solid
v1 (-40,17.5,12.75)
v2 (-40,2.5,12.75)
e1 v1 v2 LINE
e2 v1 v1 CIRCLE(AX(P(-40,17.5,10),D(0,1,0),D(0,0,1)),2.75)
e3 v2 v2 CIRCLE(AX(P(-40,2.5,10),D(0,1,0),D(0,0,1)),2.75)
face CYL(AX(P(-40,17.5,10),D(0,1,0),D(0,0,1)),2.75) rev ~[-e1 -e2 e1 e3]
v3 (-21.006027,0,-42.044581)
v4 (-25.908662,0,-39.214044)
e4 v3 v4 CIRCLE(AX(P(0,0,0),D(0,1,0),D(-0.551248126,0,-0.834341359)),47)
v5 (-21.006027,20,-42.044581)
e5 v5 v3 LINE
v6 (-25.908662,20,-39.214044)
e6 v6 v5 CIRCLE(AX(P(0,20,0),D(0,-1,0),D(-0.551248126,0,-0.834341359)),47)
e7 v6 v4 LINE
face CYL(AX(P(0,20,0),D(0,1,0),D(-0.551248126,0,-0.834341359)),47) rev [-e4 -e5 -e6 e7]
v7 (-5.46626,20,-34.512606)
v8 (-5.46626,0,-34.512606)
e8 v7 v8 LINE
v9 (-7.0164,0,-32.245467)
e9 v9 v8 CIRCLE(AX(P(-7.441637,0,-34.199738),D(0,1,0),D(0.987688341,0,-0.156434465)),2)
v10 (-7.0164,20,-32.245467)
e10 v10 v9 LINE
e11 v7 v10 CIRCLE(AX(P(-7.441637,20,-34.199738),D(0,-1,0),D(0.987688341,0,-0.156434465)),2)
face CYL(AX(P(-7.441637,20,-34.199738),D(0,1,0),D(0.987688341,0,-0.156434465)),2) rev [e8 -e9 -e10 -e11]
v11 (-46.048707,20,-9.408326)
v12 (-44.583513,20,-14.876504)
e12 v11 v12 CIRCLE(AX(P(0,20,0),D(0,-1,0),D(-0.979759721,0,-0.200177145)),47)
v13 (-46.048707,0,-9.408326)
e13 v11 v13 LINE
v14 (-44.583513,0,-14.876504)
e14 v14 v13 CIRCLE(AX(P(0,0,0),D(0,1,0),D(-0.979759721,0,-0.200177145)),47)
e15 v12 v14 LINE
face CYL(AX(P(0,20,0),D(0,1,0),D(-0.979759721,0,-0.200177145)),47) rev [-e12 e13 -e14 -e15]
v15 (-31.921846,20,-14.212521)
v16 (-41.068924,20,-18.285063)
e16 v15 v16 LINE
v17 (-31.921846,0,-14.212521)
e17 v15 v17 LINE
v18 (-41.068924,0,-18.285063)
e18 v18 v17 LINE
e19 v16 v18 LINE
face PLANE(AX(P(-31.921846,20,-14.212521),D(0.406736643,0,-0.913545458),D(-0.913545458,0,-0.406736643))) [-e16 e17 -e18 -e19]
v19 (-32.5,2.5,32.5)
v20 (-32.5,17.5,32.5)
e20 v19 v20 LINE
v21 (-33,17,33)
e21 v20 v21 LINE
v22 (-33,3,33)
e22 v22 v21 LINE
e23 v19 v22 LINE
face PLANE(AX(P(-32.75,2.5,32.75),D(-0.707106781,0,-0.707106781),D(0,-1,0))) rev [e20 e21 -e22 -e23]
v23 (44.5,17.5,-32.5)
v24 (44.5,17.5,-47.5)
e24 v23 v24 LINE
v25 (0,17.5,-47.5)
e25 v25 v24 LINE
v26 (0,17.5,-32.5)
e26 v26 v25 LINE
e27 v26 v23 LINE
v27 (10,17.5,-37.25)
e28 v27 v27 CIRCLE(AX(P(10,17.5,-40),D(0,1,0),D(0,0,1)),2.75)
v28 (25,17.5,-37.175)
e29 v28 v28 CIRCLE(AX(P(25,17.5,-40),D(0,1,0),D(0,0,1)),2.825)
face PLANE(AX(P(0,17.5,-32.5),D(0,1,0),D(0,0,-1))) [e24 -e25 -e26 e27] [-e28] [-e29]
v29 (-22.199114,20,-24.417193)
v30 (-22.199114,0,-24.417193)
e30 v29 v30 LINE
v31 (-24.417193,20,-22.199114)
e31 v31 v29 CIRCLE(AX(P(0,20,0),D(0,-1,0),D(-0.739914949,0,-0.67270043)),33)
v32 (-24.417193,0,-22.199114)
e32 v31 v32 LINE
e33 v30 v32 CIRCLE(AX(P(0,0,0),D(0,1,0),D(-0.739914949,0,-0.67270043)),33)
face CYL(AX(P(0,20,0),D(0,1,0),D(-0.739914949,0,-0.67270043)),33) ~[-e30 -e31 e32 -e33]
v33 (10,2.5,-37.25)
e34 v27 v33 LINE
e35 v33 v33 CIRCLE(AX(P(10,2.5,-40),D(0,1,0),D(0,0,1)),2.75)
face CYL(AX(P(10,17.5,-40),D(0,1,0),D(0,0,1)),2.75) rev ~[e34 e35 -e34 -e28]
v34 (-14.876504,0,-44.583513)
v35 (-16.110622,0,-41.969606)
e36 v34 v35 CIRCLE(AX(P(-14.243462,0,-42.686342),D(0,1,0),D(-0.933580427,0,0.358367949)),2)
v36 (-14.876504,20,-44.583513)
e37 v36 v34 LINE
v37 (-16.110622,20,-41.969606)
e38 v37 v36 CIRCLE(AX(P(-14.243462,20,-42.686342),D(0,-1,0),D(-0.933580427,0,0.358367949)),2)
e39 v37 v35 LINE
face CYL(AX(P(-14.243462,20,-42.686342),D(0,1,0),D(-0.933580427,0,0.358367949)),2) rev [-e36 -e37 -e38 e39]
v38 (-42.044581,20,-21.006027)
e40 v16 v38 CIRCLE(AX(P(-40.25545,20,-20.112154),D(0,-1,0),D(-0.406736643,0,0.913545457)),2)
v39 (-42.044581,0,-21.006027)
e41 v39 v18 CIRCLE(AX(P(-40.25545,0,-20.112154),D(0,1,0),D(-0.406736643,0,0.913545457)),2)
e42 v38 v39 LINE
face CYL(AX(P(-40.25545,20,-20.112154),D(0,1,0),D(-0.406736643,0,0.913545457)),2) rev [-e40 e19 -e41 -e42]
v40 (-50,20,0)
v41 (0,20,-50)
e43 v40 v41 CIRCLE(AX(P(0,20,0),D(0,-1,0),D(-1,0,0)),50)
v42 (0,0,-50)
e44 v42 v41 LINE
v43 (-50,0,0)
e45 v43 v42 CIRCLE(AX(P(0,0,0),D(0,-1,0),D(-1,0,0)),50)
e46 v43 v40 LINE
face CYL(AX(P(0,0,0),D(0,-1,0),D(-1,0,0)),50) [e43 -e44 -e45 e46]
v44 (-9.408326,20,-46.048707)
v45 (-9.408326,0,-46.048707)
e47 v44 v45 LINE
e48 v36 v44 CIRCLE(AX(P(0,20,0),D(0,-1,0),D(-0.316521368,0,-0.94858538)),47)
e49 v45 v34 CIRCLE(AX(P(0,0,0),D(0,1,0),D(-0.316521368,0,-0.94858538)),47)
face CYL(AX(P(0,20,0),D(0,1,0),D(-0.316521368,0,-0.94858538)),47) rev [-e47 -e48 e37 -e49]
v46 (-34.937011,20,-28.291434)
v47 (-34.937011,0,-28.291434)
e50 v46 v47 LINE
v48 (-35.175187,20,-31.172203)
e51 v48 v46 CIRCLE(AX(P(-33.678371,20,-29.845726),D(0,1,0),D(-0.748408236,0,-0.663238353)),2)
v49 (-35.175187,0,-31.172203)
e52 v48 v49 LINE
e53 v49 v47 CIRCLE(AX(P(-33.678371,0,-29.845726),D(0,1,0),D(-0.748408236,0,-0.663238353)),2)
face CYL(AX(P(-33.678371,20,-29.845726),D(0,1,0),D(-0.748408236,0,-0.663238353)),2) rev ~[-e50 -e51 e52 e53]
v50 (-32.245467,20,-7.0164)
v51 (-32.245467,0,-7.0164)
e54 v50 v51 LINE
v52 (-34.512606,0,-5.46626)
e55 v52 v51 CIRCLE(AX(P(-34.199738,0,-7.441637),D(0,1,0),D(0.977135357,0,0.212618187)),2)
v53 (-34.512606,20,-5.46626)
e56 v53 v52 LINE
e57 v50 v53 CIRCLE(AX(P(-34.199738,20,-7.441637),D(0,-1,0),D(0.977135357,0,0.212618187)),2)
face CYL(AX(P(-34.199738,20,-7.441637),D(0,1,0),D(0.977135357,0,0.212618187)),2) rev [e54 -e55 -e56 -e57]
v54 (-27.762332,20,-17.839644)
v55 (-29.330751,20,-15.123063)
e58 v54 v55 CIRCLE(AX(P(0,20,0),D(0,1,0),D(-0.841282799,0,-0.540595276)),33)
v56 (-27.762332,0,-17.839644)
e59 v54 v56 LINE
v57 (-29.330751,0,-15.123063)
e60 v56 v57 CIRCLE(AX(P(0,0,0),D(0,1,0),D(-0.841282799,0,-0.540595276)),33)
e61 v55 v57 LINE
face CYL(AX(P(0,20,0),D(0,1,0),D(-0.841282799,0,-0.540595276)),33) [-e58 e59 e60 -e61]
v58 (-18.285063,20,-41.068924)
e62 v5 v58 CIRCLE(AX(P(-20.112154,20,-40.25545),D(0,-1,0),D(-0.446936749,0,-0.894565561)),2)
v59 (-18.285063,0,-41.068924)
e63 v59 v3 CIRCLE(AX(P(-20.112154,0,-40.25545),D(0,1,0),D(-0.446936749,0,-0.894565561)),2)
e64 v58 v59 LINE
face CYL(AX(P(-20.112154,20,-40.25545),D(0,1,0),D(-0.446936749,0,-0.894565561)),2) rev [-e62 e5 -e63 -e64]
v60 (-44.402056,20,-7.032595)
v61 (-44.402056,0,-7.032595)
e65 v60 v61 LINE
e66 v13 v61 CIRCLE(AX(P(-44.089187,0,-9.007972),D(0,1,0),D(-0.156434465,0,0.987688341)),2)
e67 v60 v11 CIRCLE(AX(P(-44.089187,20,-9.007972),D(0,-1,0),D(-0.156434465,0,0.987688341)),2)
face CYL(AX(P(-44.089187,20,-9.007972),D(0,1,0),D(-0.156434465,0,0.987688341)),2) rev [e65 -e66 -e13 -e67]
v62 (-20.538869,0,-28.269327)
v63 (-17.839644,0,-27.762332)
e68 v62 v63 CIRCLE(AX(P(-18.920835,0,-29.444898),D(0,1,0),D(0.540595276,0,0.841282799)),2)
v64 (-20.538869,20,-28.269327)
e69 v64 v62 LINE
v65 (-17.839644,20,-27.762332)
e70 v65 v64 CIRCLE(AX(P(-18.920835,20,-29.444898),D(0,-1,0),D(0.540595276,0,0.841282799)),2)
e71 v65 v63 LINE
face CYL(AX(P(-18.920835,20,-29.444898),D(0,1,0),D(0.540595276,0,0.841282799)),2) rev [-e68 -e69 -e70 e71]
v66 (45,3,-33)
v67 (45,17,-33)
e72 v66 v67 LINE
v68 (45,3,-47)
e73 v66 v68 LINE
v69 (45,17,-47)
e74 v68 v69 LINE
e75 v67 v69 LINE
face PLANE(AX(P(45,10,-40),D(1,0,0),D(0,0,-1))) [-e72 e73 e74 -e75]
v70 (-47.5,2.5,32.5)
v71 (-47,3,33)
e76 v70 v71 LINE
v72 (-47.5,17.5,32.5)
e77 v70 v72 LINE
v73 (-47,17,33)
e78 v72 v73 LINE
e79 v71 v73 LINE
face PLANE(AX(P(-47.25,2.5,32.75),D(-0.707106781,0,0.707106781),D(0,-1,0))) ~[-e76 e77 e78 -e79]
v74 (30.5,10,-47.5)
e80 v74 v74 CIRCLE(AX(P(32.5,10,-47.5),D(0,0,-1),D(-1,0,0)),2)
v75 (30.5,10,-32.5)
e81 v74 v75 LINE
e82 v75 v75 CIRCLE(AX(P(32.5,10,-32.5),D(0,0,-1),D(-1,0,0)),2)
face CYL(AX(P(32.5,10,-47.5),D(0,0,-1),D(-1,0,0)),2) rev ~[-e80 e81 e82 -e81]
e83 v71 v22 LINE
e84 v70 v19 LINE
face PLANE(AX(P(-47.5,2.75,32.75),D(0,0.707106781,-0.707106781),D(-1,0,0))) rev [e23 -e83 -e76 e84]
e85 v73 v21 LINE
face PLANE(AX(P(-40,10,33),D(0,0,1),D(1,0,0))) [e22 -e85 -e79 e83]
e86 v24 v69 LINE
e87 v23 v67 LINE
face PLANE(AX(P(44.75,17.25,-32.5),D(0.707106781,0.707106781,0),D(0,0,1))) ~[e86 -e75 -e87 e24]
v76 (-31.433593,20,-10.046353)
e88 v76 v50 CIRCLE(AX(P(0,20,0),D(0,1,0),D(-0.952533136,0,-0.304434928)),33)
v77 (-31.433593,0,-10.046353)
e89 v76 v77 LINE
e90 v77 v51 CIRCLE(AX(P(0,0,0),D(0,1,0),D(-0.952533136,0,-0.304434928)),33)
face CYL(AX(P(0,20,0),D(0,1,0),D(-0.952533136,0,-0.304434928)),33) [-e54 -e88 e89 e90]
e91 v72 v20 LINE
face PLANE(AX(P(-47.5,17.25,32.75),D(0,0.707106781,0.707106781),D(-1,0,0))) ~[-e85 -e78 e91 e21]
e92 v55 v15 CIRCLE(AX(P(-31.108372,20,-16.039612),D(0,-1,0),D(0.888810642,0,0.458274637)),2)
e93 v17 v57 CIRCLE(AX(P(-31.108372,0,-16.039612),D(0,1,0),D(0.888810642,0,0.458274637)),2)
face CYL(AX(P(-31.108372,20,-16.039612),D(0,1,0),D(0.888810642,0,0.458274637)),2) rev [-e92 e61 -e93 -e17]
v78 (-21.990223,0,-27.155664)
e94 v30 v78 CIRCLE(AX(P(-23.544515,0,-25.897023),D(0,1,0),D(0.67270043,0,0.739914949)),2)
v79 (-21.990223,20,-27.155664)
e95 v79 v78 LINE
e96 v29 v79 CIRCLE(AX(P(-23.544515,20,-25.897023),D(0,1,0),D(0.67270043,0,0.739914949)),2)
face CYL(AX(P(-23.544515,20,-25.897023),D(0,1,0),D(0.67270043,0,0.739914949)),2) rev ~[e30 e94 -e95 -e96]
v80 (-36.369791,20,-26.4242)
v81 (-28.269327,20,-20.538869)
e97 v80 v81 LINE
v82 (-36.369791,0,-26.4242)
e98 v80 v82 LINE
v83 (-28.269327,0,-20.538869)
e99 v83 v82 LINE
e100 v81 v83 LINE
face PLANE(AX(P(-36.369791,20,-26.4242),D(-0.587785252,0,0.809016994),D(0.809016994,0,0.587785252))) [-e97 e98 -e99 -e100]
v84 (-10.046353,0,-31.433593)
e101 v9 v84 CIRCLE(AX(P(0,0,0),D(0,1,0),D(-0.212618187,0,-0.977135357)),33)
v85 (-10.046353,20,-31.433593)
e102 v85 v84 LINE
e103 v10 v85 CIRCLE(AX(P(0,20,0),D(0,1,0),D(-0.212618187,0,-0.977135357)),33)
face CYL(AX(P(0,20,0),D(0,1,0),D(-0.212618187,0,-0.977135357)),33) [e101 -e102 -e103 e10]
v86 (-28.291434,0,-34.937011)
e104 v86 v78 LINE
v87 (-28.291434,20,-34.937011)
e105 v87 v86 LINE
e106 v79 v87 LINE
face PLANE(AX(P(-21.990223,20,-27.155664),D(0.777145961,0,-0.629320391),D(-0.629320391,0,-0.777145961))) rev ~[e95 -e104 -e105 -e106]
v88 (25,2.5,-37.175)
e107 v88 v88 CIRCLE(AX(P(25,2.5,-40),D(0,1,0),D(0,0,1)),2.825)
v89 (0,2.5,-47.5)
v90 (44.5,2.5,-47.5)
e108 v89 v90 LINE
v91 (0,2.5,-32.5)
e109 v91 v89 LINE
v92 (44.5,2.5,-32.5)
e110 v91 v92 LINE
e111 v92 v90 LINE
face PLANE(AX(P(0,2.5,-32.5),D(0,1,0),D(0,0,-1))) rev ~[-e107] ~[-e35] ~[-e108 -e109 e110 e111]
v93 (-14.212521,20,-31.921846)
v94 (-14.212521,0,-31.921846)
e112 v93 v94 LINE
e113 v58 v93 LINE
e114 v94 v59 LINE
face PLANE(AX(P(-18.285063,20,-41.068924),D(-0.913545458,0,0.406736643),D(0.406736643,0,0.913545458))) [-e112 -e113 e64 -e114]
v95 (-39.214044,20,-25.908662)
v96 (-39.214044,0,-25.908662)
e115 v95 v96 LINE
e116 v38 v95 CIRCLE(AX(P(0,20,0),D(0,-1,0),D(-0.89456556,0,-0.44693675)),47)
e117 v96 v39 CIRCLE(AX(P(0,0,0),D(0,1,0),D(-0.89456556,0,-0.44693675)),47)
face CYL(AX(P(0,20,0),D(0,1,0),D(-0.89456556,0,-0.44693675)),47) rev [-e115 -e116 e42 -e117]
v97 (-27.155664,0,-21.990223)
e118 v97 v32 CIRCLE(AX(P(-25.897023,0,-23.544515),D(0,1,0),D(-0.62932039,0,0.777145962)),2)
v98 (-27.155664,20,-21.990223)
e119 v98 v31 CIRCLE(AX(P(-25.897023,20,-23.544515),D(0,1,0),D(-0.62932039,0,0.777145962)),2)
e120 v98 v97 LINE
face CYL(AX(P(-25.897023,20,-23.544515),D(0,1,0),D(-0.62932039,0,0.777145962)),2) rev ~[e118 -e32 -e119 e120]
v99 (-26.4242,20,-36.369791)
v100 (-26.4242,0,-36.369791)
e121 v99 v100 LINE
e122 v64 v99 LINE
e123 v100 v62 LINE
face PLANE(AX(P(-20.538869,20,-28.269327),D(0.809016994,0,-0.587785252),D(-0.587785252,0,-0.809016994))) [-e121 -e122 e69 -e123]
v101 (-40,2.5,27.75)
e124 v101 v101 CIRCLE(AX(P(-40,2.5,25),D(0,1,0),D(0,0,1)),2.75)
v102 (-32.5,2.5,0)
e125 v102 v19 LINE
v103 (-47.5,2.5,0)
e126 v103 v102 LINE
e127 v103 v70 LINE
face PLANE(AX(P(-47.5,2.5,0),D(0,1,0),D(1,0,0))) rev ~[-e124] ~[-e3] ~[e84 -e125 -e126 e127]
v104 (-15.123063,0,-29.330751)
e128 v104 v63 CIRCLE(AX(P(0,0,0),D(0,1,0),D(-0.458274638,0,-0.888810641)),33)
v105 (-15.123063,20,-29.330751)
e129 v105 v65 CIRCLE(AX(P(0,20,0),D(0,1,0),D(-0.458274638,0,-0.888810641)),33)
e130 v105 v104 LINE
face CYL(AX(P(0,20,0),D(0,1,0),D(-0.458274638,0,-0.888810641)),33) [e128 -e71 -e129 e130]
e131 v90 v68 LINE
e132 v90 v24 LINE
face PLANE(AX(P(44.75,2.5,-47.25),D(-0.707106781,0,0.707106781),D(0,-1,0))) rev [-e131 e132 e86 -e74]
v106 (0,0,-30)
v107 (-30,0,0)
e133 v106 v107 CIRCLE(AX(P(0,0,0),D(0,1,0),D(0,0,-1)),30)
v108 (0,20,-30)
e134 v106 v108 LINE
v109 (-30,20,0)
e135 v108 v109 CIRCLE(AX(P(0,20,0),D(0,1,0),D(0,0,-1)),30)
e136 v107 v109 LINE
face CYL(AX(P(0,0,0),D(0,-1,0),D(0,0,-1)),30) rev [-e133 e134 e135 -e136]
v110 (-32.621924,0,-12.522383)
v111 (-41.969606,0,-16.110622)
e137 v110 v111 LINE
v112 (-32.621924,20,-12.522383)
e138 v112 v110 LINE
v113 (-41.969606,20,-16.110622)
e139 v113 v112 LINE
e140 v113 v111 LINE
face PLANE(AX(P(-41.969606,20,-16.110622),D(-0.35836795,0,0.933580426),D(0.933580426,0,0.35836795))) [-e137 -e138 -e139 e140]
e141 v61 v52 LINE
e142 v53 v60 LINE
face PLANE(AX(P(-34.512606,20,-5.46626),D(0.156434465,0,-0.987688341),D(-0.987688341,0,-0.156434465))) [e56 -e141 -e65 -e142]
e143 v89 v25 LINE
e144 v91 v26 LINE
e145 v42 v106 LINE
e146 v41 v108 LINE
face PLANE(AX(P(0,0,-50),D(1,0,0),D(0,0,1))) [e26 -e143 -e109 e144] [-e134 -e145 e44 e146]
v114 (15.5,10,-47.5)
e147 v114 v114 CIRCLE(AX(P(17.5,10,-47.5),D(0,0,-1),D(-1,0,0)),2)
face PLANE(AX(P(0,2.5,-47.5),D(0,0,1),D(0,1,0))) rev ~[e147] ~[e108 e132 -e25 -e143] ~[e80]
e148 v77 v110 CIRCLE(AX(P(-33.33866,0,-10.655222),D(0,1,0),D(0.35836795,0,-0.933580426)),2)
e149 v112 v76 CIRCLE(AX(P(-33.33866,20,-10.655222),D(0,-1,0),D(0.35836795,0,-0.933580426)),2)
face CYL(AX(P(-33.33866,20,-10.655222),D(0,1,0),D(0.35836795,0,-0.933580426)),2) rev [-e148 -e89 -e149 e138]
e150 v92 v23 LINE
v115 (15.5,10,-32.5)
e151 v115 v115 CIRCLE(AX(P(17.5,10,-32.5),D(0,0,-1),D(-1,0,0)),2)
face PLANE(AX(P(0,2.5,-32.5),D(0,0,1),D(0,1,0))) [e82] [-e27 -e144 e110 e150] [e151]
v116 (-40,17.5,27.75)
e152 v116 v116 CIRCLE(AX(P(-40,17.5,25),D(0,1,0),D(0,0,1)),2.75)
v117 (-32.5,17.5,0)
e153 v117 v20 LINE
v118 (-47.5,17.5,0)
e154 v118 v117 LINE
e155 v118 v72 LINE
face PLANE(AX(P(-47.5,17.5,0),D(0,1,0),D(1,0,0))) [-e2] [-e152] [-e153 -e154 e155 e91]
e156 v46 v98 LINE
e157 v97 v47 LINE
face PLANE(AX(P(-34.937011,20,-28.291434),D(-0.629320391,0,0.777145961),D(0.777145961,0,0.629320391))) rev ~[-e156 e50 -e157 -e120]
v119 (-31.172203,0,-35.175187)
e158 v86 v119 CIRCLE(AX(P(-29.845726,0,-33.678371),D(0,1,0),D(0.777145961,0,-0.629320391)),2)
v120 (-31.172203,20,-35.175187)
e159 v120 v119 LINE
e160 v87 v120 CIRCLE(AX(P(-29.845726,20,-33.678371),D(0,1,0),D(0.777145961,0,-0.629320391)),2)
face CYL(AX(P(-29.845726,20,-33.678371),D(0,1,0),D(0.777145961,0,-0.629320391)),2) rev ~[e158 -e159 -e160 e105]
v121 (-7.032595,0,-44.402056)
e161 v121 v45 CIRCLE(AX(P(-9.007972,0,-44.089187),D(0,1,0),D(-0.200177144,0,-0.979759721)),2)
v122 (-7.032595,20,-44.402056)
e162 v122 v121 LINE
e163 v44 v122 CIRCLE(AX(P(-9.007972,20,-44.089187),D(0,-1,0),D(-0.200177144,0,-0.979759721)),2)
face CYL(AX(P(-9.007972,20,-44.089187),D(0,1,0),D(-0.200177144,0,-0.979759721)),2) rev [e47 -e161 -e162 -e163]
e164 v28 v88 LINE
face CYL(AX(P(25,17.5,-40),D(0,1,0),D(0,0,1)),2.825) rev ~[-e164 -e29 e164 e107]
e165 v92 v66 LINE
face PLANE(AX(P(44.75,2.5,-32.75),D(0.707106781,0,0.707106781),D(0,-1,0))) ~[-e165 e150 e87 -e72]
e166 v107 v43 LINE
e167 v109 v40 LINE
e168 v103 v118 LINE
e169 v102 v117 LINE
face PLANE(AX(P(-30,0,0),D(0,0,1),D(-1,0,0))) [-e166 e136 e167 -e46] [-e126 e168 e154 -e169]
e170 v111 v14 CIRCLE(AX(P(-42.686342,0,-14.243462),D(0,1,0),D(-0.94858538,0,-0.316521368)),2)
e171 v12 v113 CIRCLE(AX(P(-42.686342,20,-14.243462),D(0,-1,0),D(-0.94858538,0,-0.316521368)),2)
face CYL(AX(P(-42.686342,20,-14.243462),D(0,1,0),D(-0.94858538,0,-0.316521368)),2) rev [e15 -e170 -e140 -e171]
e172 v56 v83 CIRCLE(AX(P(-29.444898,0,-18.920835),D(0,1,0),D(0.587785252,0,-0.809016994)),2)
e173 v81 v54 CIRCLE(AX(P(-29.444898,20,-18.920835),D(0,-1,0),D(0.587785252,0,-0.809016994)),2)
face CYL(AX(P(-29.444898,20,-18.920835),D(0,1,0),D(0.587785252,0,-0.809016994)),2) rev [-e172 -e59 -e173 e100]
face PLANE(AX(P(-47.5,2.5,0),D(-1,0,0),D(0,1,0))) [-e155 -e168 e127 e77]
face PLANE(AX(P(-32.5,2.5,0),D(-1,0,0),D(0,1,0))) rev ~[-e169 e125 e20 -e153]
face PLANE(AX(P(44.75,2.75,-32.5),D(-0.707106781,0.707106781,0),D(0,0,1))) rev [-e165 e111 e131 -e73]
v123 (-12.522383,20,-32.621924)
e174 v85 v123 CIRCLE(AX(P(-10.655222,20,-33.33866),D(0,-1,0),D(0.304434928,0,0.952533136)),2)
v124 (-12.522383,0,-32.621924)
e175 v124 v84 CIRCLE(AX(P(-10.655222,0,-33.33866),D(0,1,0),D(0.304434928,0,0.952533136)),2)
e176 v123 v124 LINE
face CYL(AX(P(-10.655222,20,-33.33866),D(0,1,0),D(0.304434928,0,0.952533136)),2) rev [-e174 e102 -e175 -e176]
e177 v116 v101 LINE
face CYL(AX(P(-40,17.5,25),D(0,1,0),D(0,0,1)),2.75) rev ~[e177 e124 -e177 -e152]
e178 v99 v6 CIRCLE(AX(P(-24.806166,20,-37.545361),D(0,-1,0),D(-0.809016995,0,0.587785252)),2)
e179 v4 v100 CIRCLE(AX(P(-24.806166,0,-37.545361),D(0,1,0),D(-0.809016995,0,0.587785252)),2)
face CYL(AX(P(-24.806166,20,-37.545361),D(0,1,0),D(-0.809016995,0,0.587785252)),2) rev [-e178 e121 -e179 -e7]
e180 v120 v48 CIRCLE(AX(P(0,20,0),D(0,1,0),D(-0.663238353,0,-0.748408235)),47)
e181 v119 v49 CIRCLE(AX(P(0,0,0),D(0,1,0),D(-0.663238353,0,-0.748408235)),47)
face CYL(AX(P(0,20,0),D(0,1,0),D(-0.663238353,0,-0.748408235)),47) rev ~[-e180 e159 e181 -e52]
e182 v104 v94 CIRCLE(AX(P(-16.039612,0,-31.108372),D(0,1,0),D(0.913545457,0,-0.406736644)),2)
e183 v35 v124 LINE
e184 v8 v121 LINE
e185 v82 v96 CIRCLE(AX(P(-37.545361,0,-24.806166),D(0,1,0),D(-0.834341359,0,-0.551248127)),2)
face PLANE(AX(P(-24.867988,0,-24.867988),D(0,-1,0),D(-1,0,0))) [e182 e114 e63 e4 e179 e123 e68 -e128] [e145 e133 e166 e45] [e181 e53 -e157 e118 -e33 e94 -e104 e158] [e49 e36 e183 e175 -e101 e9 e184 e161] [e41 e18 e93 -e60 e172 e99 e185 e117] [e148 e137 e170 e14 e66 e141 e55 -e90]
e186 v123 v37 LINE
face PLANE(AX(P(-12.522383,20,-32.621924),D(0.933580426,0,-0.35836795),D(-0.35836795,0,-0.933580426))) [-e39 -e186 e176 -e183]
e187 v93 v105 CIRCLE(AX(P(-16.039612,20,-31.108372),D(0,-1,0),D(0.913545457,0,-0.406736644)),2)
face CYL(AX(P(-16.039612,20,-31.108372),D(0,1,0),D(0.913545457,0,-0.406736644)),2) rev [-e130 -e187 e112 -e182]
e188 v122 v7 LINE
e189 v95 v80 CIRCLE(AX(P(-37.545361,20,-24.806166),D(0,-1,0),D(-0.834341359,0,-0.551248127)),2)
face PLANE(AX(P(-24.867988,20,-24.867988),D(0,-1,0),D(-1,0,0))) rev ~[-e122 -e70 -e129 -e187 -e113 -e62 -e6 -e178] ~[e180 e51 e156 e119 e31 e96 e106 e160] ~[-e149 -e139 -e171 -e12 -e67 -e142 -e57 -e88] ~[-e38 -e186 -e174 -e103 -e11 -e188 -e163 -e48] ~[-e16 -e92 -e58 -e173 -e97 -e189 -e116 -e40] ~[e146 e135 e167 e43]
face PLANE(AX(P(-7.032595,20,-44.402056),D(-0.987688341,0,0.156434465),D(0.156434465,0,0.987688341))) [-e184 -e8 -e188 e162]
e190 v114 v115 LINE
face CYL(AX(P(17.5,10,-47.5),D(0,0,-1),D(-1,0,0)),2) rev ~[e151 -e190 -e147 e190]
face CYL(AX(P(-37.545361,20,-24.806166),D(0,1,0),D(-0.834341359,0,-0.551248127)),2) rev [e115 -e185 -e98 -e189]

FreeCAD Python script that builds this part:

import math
import FreeCAD as App
import Part
import Sketcher

V = App.Vector
Q = App.Units.Quantity


def edges_at(feature, points):
    """Names of the edges that pass closest to the given points."""
    edges = feature.Shape.Edges
    near = lambda p: min(range(len(edges)), key=lambda i: edges[i].distToShape(Part.Vertex(*p))[0])
    return sorted({f"Edge{near(p) + 1}" for p in points})

doc = App.newDocument("Part")
params = doc.addObject("Spreadsheet::Sheet", "Params")
for row, (alias, value) in enumerate([
    ("sketch1_radius", "50 mm"),
    ("sketch1_radius2", "30 mm"),
    ("pad1_length", "20 mm"),
    ("sketch2_width", "15 mm"),
    ("pad2_length", "33 mm"),
    ("sketch3_width", "15 mm"),
    ("pad3_length", "45 mm"),
    ("sketch4_diameter", "5.5 mm"),
    ("sketch4_diameter2", "5.65 mm"),
    ("sketch5_radius", "2 mm"),
    ("sketch5_radius2", "47 mm"),
    ("sketch5_radius3", "33 mm"),
    ("chamfer_size", "0.5 mm"),
    ("sketch6_diameter", "4 mm"),
    ("pocket3_length", "20 mm"),
], start=1):
    params.set(f"A{row}", alias)
    params.set(f"B{row}", "=" + value)
    params.setAlias(f"B{row}", alias)

body = doc.addObject("PartDesign::Body", "Body")

# Sketch on XZ plane
sketch1 = body.newObject("Sketcher::SketchObject", "Sketch")
sketch1.AttachmentSupport = (doc.getObject("XZ_Plane"), [""])
sketch1.MapMode = "FlatFace"
sketch1.addGeometry(Part.LineSegment(V(0, -30, 0), V(0, -50, 0)), False)
sketch1.addGeometry(Part.ArcOfCircle(Part.Circle(V(0, 0, 0), V(0, 0, 1), 50), math.radians(-180), math.radians(-90)), False)
sketch1.addGeometry(Part.LineSegment(V(-50, 0, 0), V(-30, 0, 0)), False)
sketch1.addGeometry(Part.ArcOfCircle(Part.Circle(V(0, 0, 0), V(0, 0, 1), 30), math.radians(180), math.radians(270)), False)
sketch1.addConstraint(Sketcher.Constraint("Coincident", 0, 2, 1, 2))
sketch1.addConstraint(Sketcher.Constraint("Coincident", 1, 1, 2, 1))
sketch1.addConstraint(Sketcher.Constraint("Coincident", 2, 2, 3, 1))
sketch1.addConstraint(Sketcher.Constraint("Coincident", 3, 2, 0, 1))
sketch1.addConstraint(Sketcher.Constraint("Vertical", 0))
sketch1.addConstraint(Sketcher.Constraint("Horizontal", 2))
sketch1.addConstraint(Sketcher.Constraint("Coincident", 1, 3, -1, 1))
sketch1.addConstraint(Sketcher.Constraint("Coincident", 3, 3, -1, 1))
sketch1.addConstraint(Sketcher.Constraint("PointOnObject", 0, 2, -2))
sketch1.addConstraint(Sketcher.Constraint("PointOnObject", 1, 1, -1))
sketch1.addConstraint(Sketcher.Constraint("Radius", 1, Q("50 mm")))
sketch1.addConstraint(Sketcher.Constraint("Radius", 3, Q("30 mm")))
sketch1.setExpression("Constraints[10]", "Params.sketch1_radius")
sketch1.setExpression("Constraints[11]", "Params.sketch1_radius2")
pad1 = body.newObject("PartDesign::Pad", "Pad")
pad1.Profile = sketch1
pad1.setExpression("Length", "Params.pad1_length")
pad1.Reversed = True

# Sketch on XY plane
sketch2 = body.newObject("Sketcher::SketchObject", "Sketch001")
sketch2.AttachmentSupport = (doc.getObject("XY_Plane"), [""])
sketch2.MapMode = "FlatFace"
sketch2.addGeometry(Part.LineSegment(V(-47.5, 17.5, 0), V(-47.5, 2.5, 0)), False)
sketch2.addGeometry(Part.LineSegment(V(-47.5, 2.5, 0), V(-32.5, 2.5, 0)), False)
sketch2.addGeometry(Part.LineSegment(V(-32.5, 2.5, 0), V(-32.5, 17.5, 0)), False)
sketch2.addGeometry(Part.LineSegment(V(-32.5, 17.5, 0), V(-47.5, 17.5, 0)), False)
sketch2.addConstraint(Sketcher.Constraint("Coincident", 0, 2, 1, 1))
sketch2.addConstraint(Sketcher.Constraint("Coincident", 1, 2, 2, 1))
sketch2.addConstraint(Sketcher.Constraint("Coincident", 2, 2, 3, 1))
sketch2.addConstraint(Sketcher.Constraint("Coincident", 3, 2, 0, 1))
sketch2.addConstraint(Sketcher.Constraint("Vertical", 0))
sketch2.addConstraint(Sketcher.Constraint("Horizontal", 1))
sketch2.addConstraint(Sketcher.Constraint("Vertical", 2))
sketch2.addConstraint(Sketcher.Constraint("Horizontal", 3))
sketch2.addConstraint(Sketcher.Constraint("Equal", 3, 0))
sketch2.addConstraint(Sketcher.Constraint("DistanceX", 1, 1, 1, 2, Q("15 mm")))
sketch2.addConstraint(Sketcher.Constraint("DistanceX", 0, 2, -1, 1, Q("47.5 mm")))
sketch2.addConstraint(Sketcher.Constraint("DistanceY", -1, 1, 0, 2, Q("2.5 mm")))
sketch2.setExpression("Constraints[9]", "Params.sketch2_width")
pad2 = body.newObject("PartDesign::Pad", "Pad001")
pad2.Profile = sketch2
pad2.setExpression("Length", "Params.pad2_length")

# Sketch on YZ plane
sketch3 = body.newObject("Sketcher::SketchObject", "Sketch002")
sketch3.AttachmentSupport = (doc.getObject("YZ_Plane"), [""])
sketch3.MapMode = "FlatFace"
sketch3.addGeometry(Part.LineSegment(V(17.5, -32.5, 0), V(2.5, -32.5, 0)), False)
sketch3.addGeometry(Part.LineSegment(V(2.5, -32.5, 0), V(2.5, -47.5, 0)), False)
sketch3.addGeometry(Part.LineSegment(V(2.5, -47.5, 0), V(17.5, -47.5, 0)), False)
sketch3.addGeometry(Part.LineSegment(V(17.5, -47.5, 0), V(17.5, -32.5, 0)), False)
sketch3.addConstraint(Sketcher.Constraint("Coincident", 0, 2, 1, 1))
sketch3.addConstraint(Sketcher.Constraint("Coincident", 1, 2, 2, 1))
sketch3.addConstraint(Sketcher.Constraint("Coincident", 2, 2, 3, 1))
sketch3.addConstraint(Sketcher.Constraint("Coincident", 3, 2, 0, 1))
sketch3.addConstraint(Sketcher.Constraint("Horizontal", 0))
sketch3.addConstraint(Sketcher.Constraint("Vertical", 1))
sketch3.addConstraint(Sketcher.Constraint("Horizontal", 2))
sketch3.addConstraint(Sketcher.Constraint("Vertical", 3))
sketch3.addConstraint(Sketcher.Constraint("Equal", 2, 1))
sketch3.addConstraint(Sketcher.Constraint("DistanceX", 0, 2, 0, 1, Q("15 mm")))
sketch3.addConstraint(Sketcher.Constraint("DistanceX", -1, 1, 0, 2, Q("2.5 mm")))
sketch3.addConstraint(Sketcher.Constraint("DistanceY", 0, 2, -1, 1, Q("32.5 mm")))
sketch3.setExpression("Constraints[9]", "Params.sketch3_width")
pad3 = body.newObject("PartDesign::Pad", "Pad002")
pad3.Profile = sketch3
pad3.setExpression("Length", "Params.pad3_length")

# Sketch on XZ plane
sketch4 = body.newObject("Sketcher::SketchObject", "Sketch003")
sketch4.AttachmentSupport = (doc.getObject("XZ_Plane"), [""])
sketch4.MapMode = "FlatFace"
sketch4.AttachmentOffset = App.Placement(V(0, 0, -17.5), App.Rotation())
sketch4.addGeometry(Part.Circle(V(10, -40, 0), V(0, 0, 1), 2.75), False)
sketch4.addGeometry(Part.Circle(V(25, -40, 0), V(0, 0, 1), 2.825), False)
sketch4.addGeometry(Part.Circle(V(-40, 10, 0), V(0, 0, 1), 2.75), False)
sketch4.addGeometry(Part.Circle(V(-40, 25, 0), V(0, 0, 1), 2.75), False)
sketch4.addConstraint(Sketcher.Constraint("Equal", 0, 2))
sketch4.addConstraint(Sketcher.Constraint("Equal", 2, 3))
sketch4.addConstraint(Sketcher.Constraint("Horizontal", 0, 3, 1, 3))
sketch4.addConstraint(Sketcher.Constraint("Vertical", 2, 3, 3, 3))
sketch4.addConstraint(Sketcher.Constraint("Diameter", 0, Q("5.5 mm")))
sketch4.addConstraint(Sketcher.Constraint("Diameter", 1, Q("5.65 mm")))
sketch4.addConstraint(Sketcher.Constraint("DistanceX", -1, 1, 0, 3, Q("10 mm")))
sketch4.addConstraint(Sketcher.Constraint("DistanceY", 0, 3, -1, 1, Q("40 mm")))
sketch4.addConstraint(Sketcher.Constraint("DistanceX", -1, 1, 1, 3, Q("25 mm")))
sketch4.addConstraint(Sketcher.Constraint("DistanceX", 2, 3, -1, 1, Q("40 mm")))
sketch4.addConstraint(Sketcher.Constraint("DistanceY", -1, 1, 2, 3, Q("10 mm")))
sketch4.addConstraint(Sketcher.Constraint("DistanceY", -1, 1, 3, 3, Q("25 mm")))
sketch4.setExpression("Constraints[4]", "Params.sketch4_diameter")
sketch4.setExpression("Constraints[5]", "Params.sketch4_diameter2")
pocket1 = body.newObject("PartDesign::Pocket", "Pocket")
pocket1.Profile = sketch4
pocket1.Type = "ThroughAll"
pocket1.Reversed = True

# Sketch on XZ plane
sketch5 = body.newObject("Sketcher::SketchObject", "Sketch004")
sketch5.AttachmentSupport = (doc.getObject("XZ_Plane"), [""])
sketch5.MapMode = "FlatFace"
sketch5.AttachmentOffset = App.Placement(V(0, 0, -20), App.Rotation())
sketch5.addGeometry(Part.LineSegment(V(-21.990223, -27.155664, 0), V(-28.291434, -34.937011, 0)), False)
sketch5.addGeometry(Part.ArcOfCircle(Part.Circle(V(-29.845726, -33.678371, 0), V(0, 0, 1), 2), math.radians(-131.547318), math.radians(-39)), False)
sketch5.addGeometry(Part.ArcOfCircle(Part.Circle(V(0, 0, 0), V(0, 0, 1), 47), math.radians(-138.452682), math.radians(-131.547318)), False)
sketch5.addGeometry(Part.ArcOfCircle(Part.Circle(V(-33.678371, -29.845726, 0), V(0, 0, 1), 2), math.radians(129), math.radians(221.547318)), False)
sketch5.addGeometry(Part.LineSegment(V(-34.937011, -28.291434, 0), V(-27.155664, -21.990223, 0)), False)
sketch5.addGeometry(Part.ArcOfCircle(Part.Circle(V(-25.897023, -23.544515, 0), V(0, 0, 1), 2), math.radians(42.275829), math.radians(129)), False)
sketch5.addGeometry(Part.ArcOfCircle(Part.Circle(V(0, 0, 0), V(0, 0, 1), 33), math.radians(-137.724171), math.radians(-132.275829)), False)
sketch5.addGeometry(Part.ArcOfCircle(Part.Circle(V(-23.544515, -25.897023, 0), V(0, 0, 1), 2), math.radians(-39), math.radians(47.724171)), False)
sketch5.addGeometry(Part.LineSegment(V(-26.4242, -36.369791, 0), V(-20.538869, -28.269327, 0)), False)
sketch5.addGeometry(Part.ArcOfCircle(Part.Circle(V(-18.920835, -29.444898, 0), V(0, 0, 1), 2), math.radians(57.275829), math.radians(144)), False)
sketch5.addGeometry(Part.ArcOfCircle(Part.Circle(V(0, 0, 0), V(0, 0, 1), 33), math.radians(-122.724171), math.radians(-117.275829)), False)
sketch5.addGeometry(Part.ArcOfCircle(Part.Circle(V(-16.039612, -31.108372, 0), V(0, 0, 1), 2), math.radians(-24), math.radians(62.724171)), False)
sketch5.addGeometry(Part.LineSegment(V(-14.212521, -31.921846, 0), V(-18.285063, -41.068924, 0)), False)
sketch5.addGeometry(Part.ArcOfCircle(Part.Circle(V(-20.112154, -40.25545, 0), V(0, 0, 1), 2), math.radians(-116.547318), math.radians(-24)), False)
sketch5.addGeometry(Part.ArcOfCircle(Part.Circle(V(0, 0, 0), V(0, 0, 1), 47), math.radians(-123.452682), math.radians(-116.547318)), False)
sketch5.addGeometry(Part.ArcOfCircle(Part.Circle(V(-24.806166, -37.545361, 0), V(0, 0, 1), 2), math.radians(144), math.radians(236.547318)), False)
sketch5.addGeometry(Part.LineSegment(V(-16.110622, -41.969606, 0), V(-12.522383, -32.621924, 0)), False)
sketch5.addGeometry(Part.ArcOfCircle(Part.Circle(V(-10.655222, -33.33866, 0), V(0, 0, 1), 2), math.radians(72.275829), math.radians(159)), False)
sketch5.addGeometry(Part.ArcOfCircle(Part.Circle(V(0, 0, 0), V(0, 0, 1), 33), math.radians(-107.724171), math.radians(-102.275829)), False)
sketch5.addGeometry(Part.ArcOfCircle(Part.Circle(V(-7.441637, -34.199738, 0), V(0, 0, 1), 2), math.radians(-9), math.radians(77.724171)), False)
sketch5.addGeometry(Part.LineSegment(V(-5.46626, -34.512606, 0), V(-7.032595, -44.402056, 0)), False)
sketch5.addGeometry(Part.ArcOfCircle(Part.Circle(V(-9.007972, -44.089187, 0), V(0, 0, 1), 2), math.radians(-101.547318), math.radians(-9)), False)
sketch5.addGeometry(Part.ArcOfCircle(Part.Circle(V(0, 0, 0), V(0, 0, 1), 47), math.radians(-108.452682), math.radians(-101.547318)), False)
sketch5.addGeometry(Part.ArcOfCircle(Part.Circle(V(-14.243462, -42.686342, 0), V(0, 0, 1), 2), math.radians(159), math.radians(251.547318)), False)
sketch5.addGeometry(Part.LineSegment(V(-41.068924, -18.285063, 0), V(-31.921846, -14.212521, 0)), False)
sketch5.addGeometry(Part.ArcOfCircle(Part.Circle(V(-31.108372, -16.039612, 0), V(0, 0, 1), 2), math.radians(27.275829), math.radians(114)), False)
sketch5.addGeometry(Part.ArcOfCircle(Part.Circle(V(0, 0, 0), V(0, 0, 1), 33), math.radians(-152.724171), math.radians(-147.275829)), False)
sketch5.addGeometry(Part.ArcOfCircle(Part.Circle(V(-29.444898, -18.920835, 0), V(0, 0, 1), 2), math.radians(-54), math.radians(32.724171)), False)
sketch5.addGeometry(Part.LineSegment(V(-28.269327, -20.538869, 0), V(-36.369791, -26.4242, 0)), False)
sketch5.addGeometry(Part.ArcOfCircle(Part.Circle(V(-37.545361, -24.806166, 0), V(0, 0, 1), 2), math.radians(-146.547318), math.radians(-54)), False)
sketch5.addGeometry(Part.ArcOfCircle(Part.Circle(V(0, 0, 0), V(0, 0, 1), 47), math.radians(-153.452682), math.radians(-146.547318)), False)
sketch5.addGeometry(Part.ArcOfCircle(Part.Circle(V(-40.25545, -20.112154, 0), V(0, 0, 1), 2), math.radians(114), math.radians(206.547318)), False)
sketch5.addGeometry(Part.LineSegment(V(-44.402056, -7.032595, 0), V(-34.512606, -5.46626, 0)), False)
sketch5.addGeometry(Part.ArcOfCircle(Part.Circle(V(-34.199738, -7.441637, 0), V(0, 0, 1), 2), math.radians(12.275829), math.radians(99)), False)
sketch5.addGeometry(Part.ArcOfCircle(Part.Circle(V(0, 0, 0), V(0, 0, 1), 33), math.radians(-167.724171), math.radians(-162.275829)), False)
sketch5.addGeometry(Part.ArcOfCircle(Part.Circle(V(-33.33866, -10.655222, 0), V(0, 0, 1), 2), math.radians(-69), math.radians(17.724171)), False)
sketch5.addGeometry(Part.LineSegment(V(-32.621924, -12.522383, 0), V(-41.969606, -16.110622, 0)), False)
sketch5.addGeometry(Part.ArcOfCircle(Part.Circle(V(-42.686342, -14.243462, 0), V(0, 0, 1), 2), math.radians(-161.547318), math.radians(-69)), False)
sketch5.addGeometry(Part.ArcOfCircle(Part.Circle(V(0, 0, 0), V(0, 0, 1), 47), math.radians(-168.452682), math.radians(-161.547318)), False)
sketch5.addGeometry(Part.ArcOfCircle(Part.Circle(V(-44.089187, -9.007972, 0), V(0, 0, 1), 2), math.radians(99), math.radians(191.547318)), False)
sketch5.addConstraint(Sketcher.Constraint("Tangent", 0, 2, 1, 2))
sketch5.addConstraint(Sketcher.Constraint("Tangent", 1, 1, 2, 2))
sketch5.addConstraint(Sketcher.Constraint("Tangent", 2, 1, 3, 2))
sketch5.addConstraint(Sketcher.Constraint("Tangent", 3, 1, 4, 1))
sketch5.addConstraint(Sketcher.Constraint("Tangent", 4, 2, 5, 2))
sketch5.addConstraint(Sketcher.Constraint("Tangent", 5, 1, 6, 1))
sketch5.addConstraint(Sketcher.Constraint("Tangent", 6, 2, 7, 2))
sketch5.addConstraint(Sketcher.Constraint("Tangent", 7, 1, 0, 1))
sketch5.addConstraint(Sketcher.Constraint("Tangent", 8, 2, 9, 2))
sketch5.addConstraint(Sketcher.Constraint("Tangent", 9, 1, 10, 1))
sketch5.addConstraint(Sketcher.Constraint("Tangent", 10, 2, 11, 2))
sketch5.addConstraint(Sketcher.Constraint("Tangent", 11, 1, 12, 1))
sketch5.addConstraint(Sketcher.Constraint("Tangent", 12, 2, 13, 2))
sketch5.addConstraint(Sketcher.Constraint("Tangent", 13, 1, 14, 2))
sketch5.addConstraint(Sketcher.Constraint("Tangent", 14, 1, 15, 2))
sketch5.addConstraint(Sketcher.Constraint("Tangent", 15, 1, 8, 1))
sketch5.addConstraint(Sketcher.Constraint("Tangent", 16, 2, 17, 2))
sketch5.addConstraint(Sketcher.Constraint("Tangent", 17, 1, 18, 1))
sketch5.addConstraint(Sketcher.Constraint("Tangent", 18, 2, 19, 2))
sketch5.addConstraint(Sketcher.Constraint("Tangent", 19, 1, 20, 1))
sketch5.addConstraint(Sketcher.Constraint("Tangent", 20, 2, 21, 2))
sketch5.addConstraint(Sketcher.Constraint("Tangent", 21, 1, 22, 2))
sketch5.addConstraint(Sketcher.Constraint("Tangent", 22, 1, 23, 2))
sketch5.addConstraint(Sketcher.Constraint("Tangent", 23, 1, 16, 1))
sketch5.addConstraint(Sketcher.Constraint("Tangent", 24, 2, 25, 2))
sketch5.addConstraint(Sketcher.Constraint("Tangent", 25, 1, 26, 1))
sketch5.addConstraint(Sketcher.Constraint("Tangent", 26, 2, 27, 2))
sketch5.addConstraint(Sketcher.Constraint("Tangent", 27, 1, 28, 1))
sketch5.addConstraint(Sketcher.Constraint("Tangent", 28, 2, 29, 2))
sketch5.addConstraint(Sketcher.Constraint("Tangent", 29, 1, 30, 2))
sketch5.addConstraint(Sketcher.Constraint("Tangent", 30, 1, 31, 2))
sketch5.addConstraint(Sketcher.Constraint("Tangent", 31, 1, 24, 1))
sketch5.addConstraint(Sketcher.Constraint("Tangent", 32, 2, 33, 2))
sketch5.addConstraint(Sketcher.Constraint("Tangent", 33, 1, 34, 1))
sketch5.addConstraint(Sketcher.Constraint("Tangent", 34, 2, 35, 2))
sketch5.addConstraint(Sketcher.Constraint("Tangent", 35, 1, 36, 1))
sketch5.addConstraint(Sketcher.Constraint("Tangent", 36, 2, 37, 2))
sketch5.addConstraint(Sketcher.Constraint("Tangent", 37, 1, 38, 2))
sketch5.addConstraint(Sketcher.Constraint("Tangent", 38, 1, 39, 2))
sketch5.addConstraint(Sketcher.Constraint("Tangent", 39, 1, 32, 1))
sketch5.addConstraint(Sketcher.Constraint("Coincident", 2, 3, -1, 1))
sketch5.addConstraint(Sketcher.Constraint("Coincident", 6, 3, -1, 1))
sketch5.addConstraint(Sketcher.Constraint("Coincident", 10, 3, -1, 1))
sketch5.addConstraint(Sketcher.Constraint("Coincident", 14, 3, -1, 1))
sketch5.addConstraint(Sketcher.Constraint("Coincident", 18, 3, -1, 1))
sketch5.addConstraint(Sketcher.Constraint("Coincident", 22, 3, -1, 1))
sketch5.addConstraint(Sketcher.Constraint("Coincident", 26, 3, -1, 1))
sketch5.addConstraint(Sketcher.Constraint("Coincident", 30, 3, -1, 1))
sketch5.addConstraint(Sketcher.Constraint("Coincident", 34, 3, -1, 1))
sketch5.addConstraint(Sketcher.Constraint("Coincident", 38, 3, -1, 1))
sketch5.addConstraint(Sketcher.Constraint("Equal", 1, 3))
sketch5.addConstraint(Sketcher.Constraint("Equal", 3, 5))
sketch5.addConstraint(Sketcher.Constraint("Equal", 5, 7))
sketch5.addConstraint(Sketcher.Constraint("Equal", 7, 9))
sketch5.addConstraint(Sketcher.Constraint("Equal", 6, 10))
sketch5.addConstraint(Sketcher.Constraint("Equal", 9, 11))
sketch5.addConstraint(Sketcher.Constraint("Equal", 11, 13))
sketch5.addConstraint(Sketcher.Constraint("Equal", 2, 14))
sketch5.addConstraint(Sketcher.Constraint("Equal", 13, 15))
sketch5.addConstraint(Sketcher.Constraint("Equal", 15, 17))
sketch5.addConstraint(Sketcher.Constraint("Equal", 10, 18))
sketch5.addConstraint(Sketcher.Constraint("Equal", 17, 19))
sketch5.addConstraint(Sketcher.Constraint("Equal", 19, 21))
sketch5.addConstraint(Sketcher.Constraint("Equal", 14, 22))
sketch5.addConstraint(Sketcher.Constraint("Equal", 21, 23))
sketch5.addConstraint(Sketcher.Constraint("Equal", 23, 25))
sketch5.addConstraint(Sketcher.Constraint("Equal", 18, 26))
sketch5.addConstraint(Sketcher.Constraint("Equal", 25, 27))
sketch5.addConstraint(Sketcher.Constraint("Equal", 27, 29))
sketch5.addConstraint(Sketcher.Constraint("Equal", 22, 30))
sketch5.addConstraint(Sketcher.Constraint("Equal", 29, 31))
sketch5.addConstraint(Sketcher.Constraint("Equal", 31, 33))
sketch5.addConstraint(Sketcher.Constraint("Equal", 26, 34))
sketch5.addConstraint(Sketcher.Constraint("Equal", 33, 35))
sketch5.addConstraint(Sketcher.Constraint("Equal", 35, 37))
sketch5.addConstraint(Sketcher.Constraint("Equal", 30, 38))
sketch5.addConstraint(Sketcher.Constraint("Equal", 37, 39))
sketch5.addConstraint(Sketcher.Constraint("Equal", 0, 4))
sketch5.addConstraint(Sketcher.Constraint("Equal", 4, 8))
sketch5.addConstraint(Sketcher.Constraint("Equal", 8, 12))
sketch5.addConstraint(Sketcher.Constraint("Equal", 12, 16))
sketch5.addConstraint(Sketcher.Constraint("Equal", 16, 20))
sketch5.addConstraint(Sketcher.Constraint("Equal", 20, 24))
sketch5.addConstraint(Sketcher.Constraint("Equal", 24, 28))
sketch5.addConstraint(Sketcher.Constraint("Equal", 28, 32))
sketch5.addConstraint(Sketcher.Constraint("Equal", 32, 36))
sketch5.addConstraint(Sketcher.Constraint("Radius", 1, Q("2 mm")))
sketch5.addConstraint(Sketcher.Constraint("Radius", 2, Q("47 mm")))
sketch5.addConstraint(Sketcher.Constraint("Radius", 6, Q("33 mm")))
sketch5.addConstraint(Sketcher.Constraint("Angle", 0, Q("-129 deg")))
sketch5.addConstraint(Sketcher.Constraint("Angle", 4, Q("39 deg")))
sketch5.addConstraint(Sketcher.Constraint("Angle", 8, Q("54 deg")))
sketch5.addConstraint(Sketcher.Constraint("Angle", 12, Q("-114 deg")))
sketch5.addConstraint(Sketcher.Constraint("Angle", 16, Q("69 deg")))
sketch5.addConstraint(Sketcher.Constraint("Angle", 20, Q("-99 deg")))
sketch5.addConstraint(Sketcher.Constraint("Angle", 24, Q("24 deg")))
sketch5.addConstraint(Sketcher.Constraint("Angle", 28, Q("-144 deg")))
sketch5.addConstraint(Sketcher.Constraint("Angle", 32, Q("9 deg")))
sketch5.addConstraint(Sketcher.Constraint("Angle", 36, Q("-159 deg")))
sketch5.addConstraint(Sketcher.Constraint("DistanceX", 15, 1, -1, 1, Q("26.4242 mm")))
sketch5.setExpression("Constraints[86]", "Params.sketch5_radius")
sketch5.setExpression("Constraints[87]", "Params.sketch5_radius2")
sketch5.setExpression("Constraints[88]", "Params.sketch5_radius3")
pocket2 = body.newObject("PartDesign::Pocket", "Pocket001")
pocket2.Profile = sketch5
pocket2.Type = "ThroughAll"
pocket2.Reversed = True
doc.recompute()

chamfer = body.newObject("PartDesign::Chamfer", "Chamfer")
chamfer.Base = (pocket2, edges_at(pocket2, [
    (-32.5, 10, 33),
    (-40, 17.5, 33),
    (-47.5, 10, 33),
    (-40, 2.5, 33),
    (45, 10, -47.5),
    (45, 17.5, -40),
    (45, 10, -32.5),
    (45, 2.5, -40),
]))
chamfer.setExpression("Size", "Params.chamfer_size")

# Sketch on XY plane
sketch6 = body.newObject("Sketcher::SketchObject", "Sketch005")
sketch6.AttachmentSupport = (doc.getObject("XY_Plane"), [""])
sketch6.MapMode = "FlatFace"
sketch6.AttachmentOffset = App.Placement(V(0, 0, -47.5), App.Rotation())
sketch6.addGeometry(Part.Circle(V(17.5, 10, 0), V(0, 0, 1), 2), False)
sketch6.addGeometry(Part.Circle(V(32.5, 10, 0), V(0, 0, 1), 2), False)
sketch6.addConstraint(Sketcher.Constraint("Equal", 0, 1))
sketch6.addConstraint(Sketcher.Constraint("Horizontal", 0, 3, 1, 3))
sketch6.addConstraint(Sketcher.Constraint("Diameter", 0, Q("4 mm")))
sketch6.addConstraint(Sketcher.Constraint("DistanceY", -1, 1, 0, 3, Q("10 mm")))
sketch6.addConstraint(Sketcher.Constraint("DistanceX", 0, 3, 1, 3, Q("15 mm")))
sketch6.addConstraint(Sketcher.Constraint("DistanceX", -1, 1, 0, 3, Q("17.5 mm")))
sketch6.setExpression("Constraints[2]", "Params.sketch6_diameter")
pocket3 = body.newObject("PartDesign::Pocket", "Pocket002")
pocket3.Profile = sketch6
pocket3.setExpression("Length", "Params.pocket3_length")
pocket3.Reversed = True

doc.recompute()
